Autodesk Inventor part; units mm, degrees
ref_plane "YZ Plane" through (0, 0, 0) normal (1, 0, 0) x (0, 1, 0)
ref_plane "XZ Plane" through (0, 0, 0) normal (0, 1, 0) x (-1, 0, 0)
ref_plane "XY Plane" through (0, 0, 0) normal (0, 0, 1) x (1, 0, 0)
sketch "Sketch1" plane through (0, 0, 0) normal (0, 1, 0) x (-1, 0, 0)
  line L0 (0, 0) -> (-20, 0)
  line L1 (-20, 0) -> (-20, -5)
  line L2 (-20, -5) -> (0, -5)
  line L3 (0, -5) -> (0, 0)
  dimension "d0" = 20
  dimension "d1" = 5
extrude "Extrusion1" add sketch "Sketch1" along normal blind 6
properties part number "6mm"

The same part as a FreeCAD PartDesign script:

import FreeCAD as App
import Part
import Sketcher
Q = App.Units.Quantity

doc = App.newDocument("Part")
body = doc.addObject("PartDesign::Body", "Body")

# Sketch on XZ plane
sketch1 = body.newObject("Sketcher::SketchObject", "Sketch")
sketch1.AttachmentSupport = (doc.getObject("XZ_Plane"), [""])
sketch1.MapMode = "FlatFace"
sketch1.addGeometry(Part.LineSegment(App.Vector(0, -5, 0), App.Vector(0, 0, 0)), False)
sketch1.addGeometry(Part.LineSegment(App.Vector(0, 0, 0), App.Vector(20, 0, 0)), False)
sketch1.addGeometry(Part.LineSegment(App.Vector(20, 0, 0), App.Vector(20, -5, 0)), False)
sketch1.addGeometry(Part.LineSegment(App.Vector(20, -5, 0), App.Vector(0, -5, 0)), False)
sketch1.addConstraint(Sketcher.Constraint("Coincident", 0, 2, 1, 1))
sketch1.addConstraint(Sketcher.Constraint("Coincident", 1, 2, 2, 1))
sketch1.addConstraint(Sketcher.Constraint("Coincident", 2, 2, 3, 1))
sketch1.addConstraint(Sketcher.Constraint("Coincident", 3, 2, 0, 1))
sketch1.addConstraint(Sketcher.Constraint("Vertical", 0))
sketch1.addConstraint(Sketcher.Constraint("Horizontal", 1))
sketch1.addConstraint(Sketcher.Constraint("Vertical", 2))
sketch1.addConstraint(Sketcher.Constraint("Horizontal", 3))
sketch1.addConstraint(Sketcher.Constraint("Coincident", 0, 2, -1, 1))
sketch1.addConstraint(Sketcher.Constraint("DistanceX", 1, 1, 1, 2, Q("20 mm")))
sketch1.addConstraint(Sketcher.Constraint("DistanceY", 0, 1, 0, 2, Q("5 mm")))
pad1 = body.newObject("PartDesign::Pad", "Pad")
pad1.Profile = sketch1
pad1.Length = 6
pad1.Reversed = True

doc.recompute()
